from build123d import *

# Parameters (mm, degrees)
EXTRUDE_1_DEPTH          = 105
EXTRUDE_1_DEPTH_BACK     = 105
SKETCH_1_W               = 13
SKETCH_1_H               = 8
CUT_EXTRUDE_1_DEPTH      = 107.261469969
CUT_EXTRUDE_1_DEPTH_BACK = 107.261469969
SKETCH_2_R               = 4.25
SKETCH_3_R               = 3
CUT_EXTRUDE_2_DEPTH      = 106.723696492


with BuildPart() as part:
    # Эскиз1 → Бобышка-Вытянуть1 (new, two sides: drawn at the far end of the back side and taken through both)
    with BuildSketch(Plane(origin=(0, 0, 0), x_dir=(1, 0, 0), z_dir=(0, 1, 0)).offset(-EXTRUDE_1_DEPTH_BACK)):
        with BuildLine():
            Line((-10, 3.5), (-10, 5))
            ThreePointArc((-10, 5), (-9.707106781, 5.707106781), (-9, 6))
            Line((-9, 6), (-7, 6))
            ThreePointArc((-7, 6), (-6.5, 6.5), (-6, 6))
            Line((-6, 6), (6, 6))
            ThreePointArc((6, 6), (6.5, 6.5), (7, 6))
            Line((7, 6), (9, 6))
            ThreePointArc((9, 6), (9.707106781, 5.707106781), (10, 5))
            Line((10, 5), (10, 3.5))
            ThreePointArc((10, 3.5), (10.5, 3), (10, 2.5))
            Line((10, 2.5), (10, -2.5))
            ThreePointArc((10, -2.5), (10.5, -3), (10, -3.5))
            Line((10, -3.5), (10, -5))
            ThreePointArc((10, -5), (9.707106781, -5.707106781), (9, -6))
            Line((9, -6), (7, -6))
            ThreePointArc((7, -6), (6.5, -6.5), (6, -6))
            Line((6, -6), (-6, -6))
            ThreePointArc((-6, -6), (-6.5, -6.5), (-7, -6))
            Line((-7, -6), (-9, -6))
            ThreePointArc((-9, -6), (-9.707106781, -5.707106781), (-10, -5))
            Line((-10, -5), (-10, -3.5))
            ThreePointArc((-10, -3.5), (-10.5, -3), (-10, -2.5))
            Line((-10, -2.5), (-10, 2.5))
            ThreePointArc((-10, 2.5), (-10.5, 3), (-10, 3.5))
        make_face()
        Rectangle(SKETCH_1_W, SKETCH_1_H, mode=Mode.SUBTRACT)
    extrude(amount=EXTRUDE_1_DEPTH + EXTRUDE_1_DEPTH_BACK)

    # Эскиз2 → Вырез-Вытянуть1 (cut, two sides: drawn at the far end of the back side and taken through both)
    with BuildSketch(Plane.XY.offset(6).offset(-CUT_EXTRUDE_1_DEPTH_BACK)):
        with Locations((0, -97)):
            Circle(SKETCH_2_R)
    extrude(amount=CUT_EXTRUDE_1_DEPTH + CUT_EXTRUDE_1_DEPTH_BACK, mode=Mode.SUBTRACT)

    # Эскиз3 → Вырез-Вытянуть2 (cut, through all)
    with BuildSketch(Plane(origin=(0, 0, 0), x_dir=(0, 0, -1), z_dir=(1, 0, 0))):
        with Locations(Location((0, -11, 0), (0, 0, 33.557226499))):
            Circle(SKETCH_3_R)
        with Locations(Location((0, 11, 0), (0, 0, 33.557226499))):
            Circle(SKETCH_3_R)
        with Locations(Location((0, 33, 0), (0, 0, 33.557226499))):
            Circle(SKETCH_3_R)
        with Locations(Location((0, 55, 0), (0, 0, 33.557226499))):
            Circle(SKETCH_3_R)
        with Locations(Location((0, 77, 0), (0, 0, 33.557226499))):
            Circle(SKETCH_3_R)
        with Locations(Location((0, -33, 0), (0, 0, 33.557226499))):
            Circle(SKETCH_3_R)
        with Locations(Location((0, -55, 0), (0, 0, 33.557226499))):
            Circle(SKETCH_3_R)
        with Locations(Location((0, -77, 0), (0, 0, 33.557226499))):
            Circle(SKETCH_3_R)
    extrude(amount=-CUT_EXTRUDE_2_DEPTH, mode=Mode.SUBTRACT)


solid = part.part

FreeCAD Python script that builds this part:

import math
import FreeCAD as App
import Part
import Sketcher
Q = App.Units.Quantity

doc = App.newDocument("Part")
body = doc.addObject("PartDesign::Body", "Body")

sketch1 = body.newObject("Sketcher::SketchObject", "Sketch")
sketch1.AttachmentSupport = (doc.getObject("XZ_Plane"), [""])
sketch1.MapMode = "FlatFace"
sketch1.addGeometry([
    Part.LineSegment(App.Vector(-10, -5, 0), App.Vector(-10, -3.5, 0)),
    Part.ArcOfCircle(Part.Circle(App.Vector(-10, -3, 0), App.Vector(0, 0, 1), 0.5), math.radians(90), math.radians(270)),
    Part.LineSegment(App.Vector(-10, -2.5, 0), App.Vector(-10, 2.5, 0)),
    Part.ArcOfCircle(Part.Circle(App.Vector(-10, 3, 0), App.Vector(0, 0, 1), 0.5), math.radians(90), math.radians(270)),
    Part.LineSegment(App.Vector(-10, 3.5, 0), App.Vector(-10, 5, 0)),
    Part.ArcOfCircle(Part.Circle(App.Vector(-9, 5, 0), App.Vector(0, 0, 1), 1), math.radians(90), math.radians(180)),
    Part.LineSegment(App.Vector(-9, 6, 0), App.Vector(-7, 6, 0)),
    Part.ArcOfCircle(Part.Circle(App.Vector(-6.5, 6, 0), App.Vector(0, 0, 1), 0.5), math.radians(0), math.radians(180)),
    Part.LineSegment(App.Vector(-6, 6, 0), App.Vector(6, 6, 0)),
    Part.ArcOfCircle(Part.Circle(App.Vector(6.5, 6, 0), App.Vector(0, 0, 1), 0.5), math.radians(0), math.radians(180)),
    Part.LineSegment(App.Vector(7, 6, 0), App.Vector(9, 6, 0)),
    Part.ArcOfCircle(Part.Circle(App.Vector(9, 5, 0), App.Vector(0, 0, 1), 1), math.radians(0), math.radians(90)),
    Part.LineSegment(App.Vector(10, 5, 0), App.Vector(10, 3.5, 0)),
    Part.ArcOfCircle(Part.Circle(App.Vector(10, 3, 0), App.Vector(0, 0, 1), 0.5), math.radians(-90), math.radians(90)),
    Part.LineSegment(App.Vector(10, 2.5, 0), App.Vector(10, -2.5, 0)),
    Part.ArcOfCircle(Part.Circle(App.Vector(10, -3, 0), App.Vector(0, 0, 1), 0.5), math.radians(-90), math.radians(90)),
    Part.LineSegment(App.Vector(10, -3.5, 0), App.Vector(10, -5, 0)),
    Part.ArcOfCircle(Part.Circle(App.Vector(9, -5, 0), App.Vector(0, 0, 1), 1), math.radians(-90), math.radians(0)),
    Part.LineSegment(App.Vector(9, -6, 0), App.Vector(7, -6, 0)),
    Part.ArcOfCircle(Part.Circle(App.Vector(6.5, -6, 0), App.Vector(0, 0, 1), 0.5), math.radians(180), math.radians(360)),
    Part.LineSegment(App.Vector(6, -6, 0), App.Vector(-6, -6, 0)),
    Part.ArcOfCircle(Part.Circle(App.Vector(-6.5, -6, 0), App.Vector(0, 0, 1), 0.5), math.radians(180), math.radians(360)),
    Part.LineSegment(App.Vector(-7, -6, 0), App.Vector(-9, -6, 0)),
    Part.ArcOfCircle(Part.Circle(App.Vector(-9, -5, 0), App.Vector(0, 0, 1), 1), math.radians(-180), math.radians(-90)),
    Part.LineSegment(App.Vector(-6.5, 4, 0), App.Vector(-6.5, -4, 0)),
    Part.LineSegment(App.Vector(-6.5, -4, 0), App.Vector(6.5, -4, 0)),
    Part.LineSegment(App.Vector(6.5, -4, 0), App.Vector(6.5, 4, 0)),
    Part.LineSegment(App.Vector(6.5, 4, 0), App.Vector(-6.5, 4, 0)),
], False)
sketch1.addConstraint([
    Sketcher.Constraint("Coincident", 0, 2, 1, 2),
    Sketcher.Constraint("Coincident", 1, 1, 2, 1),
    Sketcher.Constraint("Coincident", 2, 2, 3, 2),
    Sketcher.Constraint("Coincident", 3, 1, 4, 1),
    Sketcher.Constraint("Tangent", 4, 2, 5, 2),
    Sketcher.Constraint("Tangent", 5, 1, 6, 1),
    Sketcher.Constraint("Coincident", 6, 2, 7, 2),
    Sketcher.Constraint("Coincident", 7, 1, 8, 1),
    Sketcher.Constraint("Coincident", 8, 2, 9, 2),
    Sketcher.Constraint("Coincident", 9, 1, 10, 1),
    Sketcher.Constraint("Tangent", 10, 2, 11, 2),
    Sketcher.Constraint("Tangent", 11, 1, 12, 1),
    Sketcher.Constraint("Coincident", 12, 2, 13, 2),
    Sketcher.Constraint("Coincident", 13, 1, 14, 1),
    Sketcher.Constraint("Coincident", 14, 2, 15, 2),
    Sketcher.Constraint("Coincident", 15, 1, 16, 1),
    Sketcher.Constraint("Tangent", 16, 2, 17, 2),
    Sketcher.Constraint("Tangent", 17, 1, 18, 1),
    Sketcher.Constraint("Coincident", 18, 2, 19, 2),
    Sketcher.Constraint("Coincident", 19, 1, 20, 1),
    Sketcher.Constraint("Coincident", 20, 2, 21, 2),
    Sketcher.Constraint("Coincident", 21, 1, 22, 1),
    Sketcher.Constraint("Tangent", 22, 2, 23, 2),
    Sketcher.Constraint("Tangent", 23, 1, 0, 1),
    Sketcher.Constraint("Coincident", 24, 2, 25, 1),
    Sketcher.Constraint("Coincident", 25, 2, 26, 1),
    Sketcher.Constraint("Coincident", 26, 2, 27, 1),
    Sketcher.Constraint("Coincident", 27, 2, 24, 1),
    Sketcher.Constraint("Vertical", 0),
    Sketcher.Constraint("Vertical", 2),
    Sketcher.Constraint("Vertical", 4),
    Sketcher.Constraint("Horizontal", 6),
    Sketcher.Constraint("Horizontal", 8),
    Sketcher.Constraint("Horizontal", 10),
    Sketcher.Constraint("Vertical", 12),
    Sketcher.Constraint("Vertical", 14),
    Sketcher.Constraint("Vertical", 16),
    Sketcher.Constraint("Horizontal", 18),
    Sketcher.Constraint("Horizontal", 20),
    Sketcher.Constraint("Horizontal", 22),
    Sketcher.Constraint("Vertical", 24),
    Sketcher.Constraint("Horizontal", 25),
    Sketcher.Constraint("Vertical", 26),
    Sketcher.Constraint("Horizontal", 27),
    Sketcher.Constraint("Equal", 1, 3),
    Sketcher.Constraint("Equal", 3, 7),
    Sketcher.Constraint("Equal", 7, 9),
    Sketcher.Constraint("Equal", 5, 11),
    Sketcher.Constraint("Equal", 9, 13),
    Sketcher.Constraint("Equal", 13, 15),
    Sketcher.Constraint("Equal", 11, 17),
    Sketcher.Constraint("Equal", 15, 19),
    Sketcher.Constraint("Equal", 19, 21),
    Sketcher.Constraint("Equal", 17, 23),
    Sketcher.Constraint("Symmetric", 1, 3, 13, 3, -1, 1),
    Sketcher.Constraint("Symmetric", 3, 3, 15, 3, -1, 1),
    Sketcher.Constraint("Symmetric", 5, 3, 17, 3, -1, 1),
    Sketcher.Constraint("Symmetric", 7, 3, 19, 3, -1, 1),
    Sketcher.Constraint("Symmetric", 9, 3, 21, 3, -1, 1),
    Sketcher.Constraint("Symmetric", 11, 3, 23, 3, -1, 1),
    Sketcher.Constraint("Symmetric", 24, 2, 26, 2, -1, 1),
    Sketcher.Constraint("Symmetric", 7, 3, 9, 3, -2),
    Sketcher.Constraint("Symmetric", 5, 3, 11, 3, -2),
    Sketcher.Constraint("Symmetric", 3, 3, 13, 3, -2),
    Sketcher.Constraint("Horizontal", 9, 3, 5, 1),
    Sketcher.Constraint("Horizontal", 6, 2, 7, 1),
    Sketcher.Constraint("Horizontal", 18, 2, 19, 1),
    Sketcher.Constraint("Vertical", 3, 3, 0, 2),
    Sketcher.Constraint("Vertical", 0, 2, 1, 1),
    Sketcher.Constraint("Vertical", 12, 2, 13, 1),
    Sketcher.Constraint("Vertical", 21, 3, 24, 2),
    Sketcher.Constraint("Radius", 5, Q("1 mm")),
    Sketcher.Constraint("Radius", 1, Q("0.5 mm")),
    Sketcher.Constraint("DistanceX", 6, 1, 6, 2, Q("2 mm")),
    Sketcher.Constraint("DistanceX", 8, 1, 8, 2, Q("12 mm")),
    Sketcher.Constraint("DistanceY", 2, 1, 2, 2, Q("5 mm")),
    Sketcher.Constraint("DistanceY", 24, 2, 24, 1, Q("8 mm")),
    Sketcher.Constraint("DistanceY", 0, 1, 0, 2, Q("1.5 mm")),
])
pad1 = body.newObject("PartDesign::Pad", "Pad")
pad1.Profile = sketch1
pad1.Type = "TwoLengths"
pad1.Length = 105
pad1.Length2 = 105
pad1.Reversed = True

sketch2 = body.newObject("Sketcher::SketchObject", "Sketch001")
sketch2.AttachmentSupport = (doc.getObject("XY_Plane"), [""])
sketch2.MapMode = "FlatFace"
sketch2.AttachmentOffset = App.Placement(App.Vector(0, 0, 6), App.Rotation())
sketch2.addGeometry(Part.Circle(App.Vector(0, -97, 0), App.Vector(0, 0, 1), 4.25), False)
sketch2.addConstraint([
    Sketcher.Constraint("PointOnObject", 0, 3, -2),
    Sketcher.Constraint("Diameter", 0, Q("8.5 mm")),
    Sketcher.Constraint("DistanceY", 0, 3, -1, 1, Q("97 mm")),
])
pocket1 = body.newObject("PartDesign::Pocket", "Pocket")
pocket1.Profile = sketch2
pocket1.Type = "ThroughAll"
pocket1.Midplane = True

sketch3 = body.newObject("Sketcher::SketchObject", "Sketch002")
sketch3.AttachmentSupport = (doc.getObject("YZ_Plane"), [""])
sketch3.MapMode = "FlatFace"
sketch3.addGeometry([
    Part.Circle(App.Vector(-11, 0, 0), App.Vector(0, 0, 1), 3),
    Part.Circle(App.Vector(11, 0, 0), App.Vector(0, 0, 1), 3),
    Part.Circle(App.Vector(33, 0, 0), App.Vector(0, 0, 1), 3),
    Part.Circle(App.Vector(55, 0, 0), App.Vector(0, 0, 1), 3),
    Part.Circle(App.Vector(77, 0, 0), App.Vector(0, 0, 1), 3),
    Part.Circle(App.Vector(-33, 0, 0), App.Vector(0, 0, 1), 3),
    Part.Circle(App.Vector(-55, 0, 0), App.Vector(0, 0, 1), 3),
    Part.Circle(App.Vector(-77, 0, 0), App.Vector(0, 0, 1), 3),
], False)
sketch3.addConstraint([
    Sketcher.Constraint("Equal", 0, 1),
    Sketcher.Constraint("Equal", 1, 2),
    Sketcher.Constraint("Equal", 2, 3),
    Sketcher.Constraint("Equal", 3, 4),
    Sketcher.Constraint("Equal", 4, 5),
    Sketcher.Constraint("Equal", 5, 6),
    Sketcher.Constraint("Equal", 6, 7),
    Sketcher.Constraint("Symmetric", 0, 3, 1, 3, -1, 1),
    Sketcher.Constraint("Symmetric", 2, 3, 5, 3, -1, 1),
    Sketcher.Constraint("Symmetric", 3, 3, 6, 3, -1, 1),
    Sketcher.Constraint("Symmetric", 4, 3, 7, 3, -1, 1),
    Sketcher.Constraint("PointOnObject", 0, 3, -1),
    Sketcher.Constraint("PointOnObject", 2, 3, -1),
    Sketcher.Constraint("PointOnObject", 3, 3, -1),
    Sketcher.Constraint("PointOnObject", 4, 3, -1),
    Sketcher.Constraint("Diameter", 0, Q("6 mm")),
    Sketcher.Constraint("DistanceX", 0, 3, -1, 1, Q("11 mm")),
    Sketcher.Constraint("DistanceX", -1, 1, 2, 3, Q("33 mm")),
    Sketcher.Constraint("DistanceX", -1, 1, 3, 3, Q("55 mm")),
    Sketcher.Constraint("DistanceX", -1, 1, 4, 3, Q("77 mm")),
])
pocket2 = body.newObject("PartDesign::Pocket", "Pocket001")
pocket2.Profile = sketch3
pocket2.Type = "ThroughAll"

doc.recompute()
